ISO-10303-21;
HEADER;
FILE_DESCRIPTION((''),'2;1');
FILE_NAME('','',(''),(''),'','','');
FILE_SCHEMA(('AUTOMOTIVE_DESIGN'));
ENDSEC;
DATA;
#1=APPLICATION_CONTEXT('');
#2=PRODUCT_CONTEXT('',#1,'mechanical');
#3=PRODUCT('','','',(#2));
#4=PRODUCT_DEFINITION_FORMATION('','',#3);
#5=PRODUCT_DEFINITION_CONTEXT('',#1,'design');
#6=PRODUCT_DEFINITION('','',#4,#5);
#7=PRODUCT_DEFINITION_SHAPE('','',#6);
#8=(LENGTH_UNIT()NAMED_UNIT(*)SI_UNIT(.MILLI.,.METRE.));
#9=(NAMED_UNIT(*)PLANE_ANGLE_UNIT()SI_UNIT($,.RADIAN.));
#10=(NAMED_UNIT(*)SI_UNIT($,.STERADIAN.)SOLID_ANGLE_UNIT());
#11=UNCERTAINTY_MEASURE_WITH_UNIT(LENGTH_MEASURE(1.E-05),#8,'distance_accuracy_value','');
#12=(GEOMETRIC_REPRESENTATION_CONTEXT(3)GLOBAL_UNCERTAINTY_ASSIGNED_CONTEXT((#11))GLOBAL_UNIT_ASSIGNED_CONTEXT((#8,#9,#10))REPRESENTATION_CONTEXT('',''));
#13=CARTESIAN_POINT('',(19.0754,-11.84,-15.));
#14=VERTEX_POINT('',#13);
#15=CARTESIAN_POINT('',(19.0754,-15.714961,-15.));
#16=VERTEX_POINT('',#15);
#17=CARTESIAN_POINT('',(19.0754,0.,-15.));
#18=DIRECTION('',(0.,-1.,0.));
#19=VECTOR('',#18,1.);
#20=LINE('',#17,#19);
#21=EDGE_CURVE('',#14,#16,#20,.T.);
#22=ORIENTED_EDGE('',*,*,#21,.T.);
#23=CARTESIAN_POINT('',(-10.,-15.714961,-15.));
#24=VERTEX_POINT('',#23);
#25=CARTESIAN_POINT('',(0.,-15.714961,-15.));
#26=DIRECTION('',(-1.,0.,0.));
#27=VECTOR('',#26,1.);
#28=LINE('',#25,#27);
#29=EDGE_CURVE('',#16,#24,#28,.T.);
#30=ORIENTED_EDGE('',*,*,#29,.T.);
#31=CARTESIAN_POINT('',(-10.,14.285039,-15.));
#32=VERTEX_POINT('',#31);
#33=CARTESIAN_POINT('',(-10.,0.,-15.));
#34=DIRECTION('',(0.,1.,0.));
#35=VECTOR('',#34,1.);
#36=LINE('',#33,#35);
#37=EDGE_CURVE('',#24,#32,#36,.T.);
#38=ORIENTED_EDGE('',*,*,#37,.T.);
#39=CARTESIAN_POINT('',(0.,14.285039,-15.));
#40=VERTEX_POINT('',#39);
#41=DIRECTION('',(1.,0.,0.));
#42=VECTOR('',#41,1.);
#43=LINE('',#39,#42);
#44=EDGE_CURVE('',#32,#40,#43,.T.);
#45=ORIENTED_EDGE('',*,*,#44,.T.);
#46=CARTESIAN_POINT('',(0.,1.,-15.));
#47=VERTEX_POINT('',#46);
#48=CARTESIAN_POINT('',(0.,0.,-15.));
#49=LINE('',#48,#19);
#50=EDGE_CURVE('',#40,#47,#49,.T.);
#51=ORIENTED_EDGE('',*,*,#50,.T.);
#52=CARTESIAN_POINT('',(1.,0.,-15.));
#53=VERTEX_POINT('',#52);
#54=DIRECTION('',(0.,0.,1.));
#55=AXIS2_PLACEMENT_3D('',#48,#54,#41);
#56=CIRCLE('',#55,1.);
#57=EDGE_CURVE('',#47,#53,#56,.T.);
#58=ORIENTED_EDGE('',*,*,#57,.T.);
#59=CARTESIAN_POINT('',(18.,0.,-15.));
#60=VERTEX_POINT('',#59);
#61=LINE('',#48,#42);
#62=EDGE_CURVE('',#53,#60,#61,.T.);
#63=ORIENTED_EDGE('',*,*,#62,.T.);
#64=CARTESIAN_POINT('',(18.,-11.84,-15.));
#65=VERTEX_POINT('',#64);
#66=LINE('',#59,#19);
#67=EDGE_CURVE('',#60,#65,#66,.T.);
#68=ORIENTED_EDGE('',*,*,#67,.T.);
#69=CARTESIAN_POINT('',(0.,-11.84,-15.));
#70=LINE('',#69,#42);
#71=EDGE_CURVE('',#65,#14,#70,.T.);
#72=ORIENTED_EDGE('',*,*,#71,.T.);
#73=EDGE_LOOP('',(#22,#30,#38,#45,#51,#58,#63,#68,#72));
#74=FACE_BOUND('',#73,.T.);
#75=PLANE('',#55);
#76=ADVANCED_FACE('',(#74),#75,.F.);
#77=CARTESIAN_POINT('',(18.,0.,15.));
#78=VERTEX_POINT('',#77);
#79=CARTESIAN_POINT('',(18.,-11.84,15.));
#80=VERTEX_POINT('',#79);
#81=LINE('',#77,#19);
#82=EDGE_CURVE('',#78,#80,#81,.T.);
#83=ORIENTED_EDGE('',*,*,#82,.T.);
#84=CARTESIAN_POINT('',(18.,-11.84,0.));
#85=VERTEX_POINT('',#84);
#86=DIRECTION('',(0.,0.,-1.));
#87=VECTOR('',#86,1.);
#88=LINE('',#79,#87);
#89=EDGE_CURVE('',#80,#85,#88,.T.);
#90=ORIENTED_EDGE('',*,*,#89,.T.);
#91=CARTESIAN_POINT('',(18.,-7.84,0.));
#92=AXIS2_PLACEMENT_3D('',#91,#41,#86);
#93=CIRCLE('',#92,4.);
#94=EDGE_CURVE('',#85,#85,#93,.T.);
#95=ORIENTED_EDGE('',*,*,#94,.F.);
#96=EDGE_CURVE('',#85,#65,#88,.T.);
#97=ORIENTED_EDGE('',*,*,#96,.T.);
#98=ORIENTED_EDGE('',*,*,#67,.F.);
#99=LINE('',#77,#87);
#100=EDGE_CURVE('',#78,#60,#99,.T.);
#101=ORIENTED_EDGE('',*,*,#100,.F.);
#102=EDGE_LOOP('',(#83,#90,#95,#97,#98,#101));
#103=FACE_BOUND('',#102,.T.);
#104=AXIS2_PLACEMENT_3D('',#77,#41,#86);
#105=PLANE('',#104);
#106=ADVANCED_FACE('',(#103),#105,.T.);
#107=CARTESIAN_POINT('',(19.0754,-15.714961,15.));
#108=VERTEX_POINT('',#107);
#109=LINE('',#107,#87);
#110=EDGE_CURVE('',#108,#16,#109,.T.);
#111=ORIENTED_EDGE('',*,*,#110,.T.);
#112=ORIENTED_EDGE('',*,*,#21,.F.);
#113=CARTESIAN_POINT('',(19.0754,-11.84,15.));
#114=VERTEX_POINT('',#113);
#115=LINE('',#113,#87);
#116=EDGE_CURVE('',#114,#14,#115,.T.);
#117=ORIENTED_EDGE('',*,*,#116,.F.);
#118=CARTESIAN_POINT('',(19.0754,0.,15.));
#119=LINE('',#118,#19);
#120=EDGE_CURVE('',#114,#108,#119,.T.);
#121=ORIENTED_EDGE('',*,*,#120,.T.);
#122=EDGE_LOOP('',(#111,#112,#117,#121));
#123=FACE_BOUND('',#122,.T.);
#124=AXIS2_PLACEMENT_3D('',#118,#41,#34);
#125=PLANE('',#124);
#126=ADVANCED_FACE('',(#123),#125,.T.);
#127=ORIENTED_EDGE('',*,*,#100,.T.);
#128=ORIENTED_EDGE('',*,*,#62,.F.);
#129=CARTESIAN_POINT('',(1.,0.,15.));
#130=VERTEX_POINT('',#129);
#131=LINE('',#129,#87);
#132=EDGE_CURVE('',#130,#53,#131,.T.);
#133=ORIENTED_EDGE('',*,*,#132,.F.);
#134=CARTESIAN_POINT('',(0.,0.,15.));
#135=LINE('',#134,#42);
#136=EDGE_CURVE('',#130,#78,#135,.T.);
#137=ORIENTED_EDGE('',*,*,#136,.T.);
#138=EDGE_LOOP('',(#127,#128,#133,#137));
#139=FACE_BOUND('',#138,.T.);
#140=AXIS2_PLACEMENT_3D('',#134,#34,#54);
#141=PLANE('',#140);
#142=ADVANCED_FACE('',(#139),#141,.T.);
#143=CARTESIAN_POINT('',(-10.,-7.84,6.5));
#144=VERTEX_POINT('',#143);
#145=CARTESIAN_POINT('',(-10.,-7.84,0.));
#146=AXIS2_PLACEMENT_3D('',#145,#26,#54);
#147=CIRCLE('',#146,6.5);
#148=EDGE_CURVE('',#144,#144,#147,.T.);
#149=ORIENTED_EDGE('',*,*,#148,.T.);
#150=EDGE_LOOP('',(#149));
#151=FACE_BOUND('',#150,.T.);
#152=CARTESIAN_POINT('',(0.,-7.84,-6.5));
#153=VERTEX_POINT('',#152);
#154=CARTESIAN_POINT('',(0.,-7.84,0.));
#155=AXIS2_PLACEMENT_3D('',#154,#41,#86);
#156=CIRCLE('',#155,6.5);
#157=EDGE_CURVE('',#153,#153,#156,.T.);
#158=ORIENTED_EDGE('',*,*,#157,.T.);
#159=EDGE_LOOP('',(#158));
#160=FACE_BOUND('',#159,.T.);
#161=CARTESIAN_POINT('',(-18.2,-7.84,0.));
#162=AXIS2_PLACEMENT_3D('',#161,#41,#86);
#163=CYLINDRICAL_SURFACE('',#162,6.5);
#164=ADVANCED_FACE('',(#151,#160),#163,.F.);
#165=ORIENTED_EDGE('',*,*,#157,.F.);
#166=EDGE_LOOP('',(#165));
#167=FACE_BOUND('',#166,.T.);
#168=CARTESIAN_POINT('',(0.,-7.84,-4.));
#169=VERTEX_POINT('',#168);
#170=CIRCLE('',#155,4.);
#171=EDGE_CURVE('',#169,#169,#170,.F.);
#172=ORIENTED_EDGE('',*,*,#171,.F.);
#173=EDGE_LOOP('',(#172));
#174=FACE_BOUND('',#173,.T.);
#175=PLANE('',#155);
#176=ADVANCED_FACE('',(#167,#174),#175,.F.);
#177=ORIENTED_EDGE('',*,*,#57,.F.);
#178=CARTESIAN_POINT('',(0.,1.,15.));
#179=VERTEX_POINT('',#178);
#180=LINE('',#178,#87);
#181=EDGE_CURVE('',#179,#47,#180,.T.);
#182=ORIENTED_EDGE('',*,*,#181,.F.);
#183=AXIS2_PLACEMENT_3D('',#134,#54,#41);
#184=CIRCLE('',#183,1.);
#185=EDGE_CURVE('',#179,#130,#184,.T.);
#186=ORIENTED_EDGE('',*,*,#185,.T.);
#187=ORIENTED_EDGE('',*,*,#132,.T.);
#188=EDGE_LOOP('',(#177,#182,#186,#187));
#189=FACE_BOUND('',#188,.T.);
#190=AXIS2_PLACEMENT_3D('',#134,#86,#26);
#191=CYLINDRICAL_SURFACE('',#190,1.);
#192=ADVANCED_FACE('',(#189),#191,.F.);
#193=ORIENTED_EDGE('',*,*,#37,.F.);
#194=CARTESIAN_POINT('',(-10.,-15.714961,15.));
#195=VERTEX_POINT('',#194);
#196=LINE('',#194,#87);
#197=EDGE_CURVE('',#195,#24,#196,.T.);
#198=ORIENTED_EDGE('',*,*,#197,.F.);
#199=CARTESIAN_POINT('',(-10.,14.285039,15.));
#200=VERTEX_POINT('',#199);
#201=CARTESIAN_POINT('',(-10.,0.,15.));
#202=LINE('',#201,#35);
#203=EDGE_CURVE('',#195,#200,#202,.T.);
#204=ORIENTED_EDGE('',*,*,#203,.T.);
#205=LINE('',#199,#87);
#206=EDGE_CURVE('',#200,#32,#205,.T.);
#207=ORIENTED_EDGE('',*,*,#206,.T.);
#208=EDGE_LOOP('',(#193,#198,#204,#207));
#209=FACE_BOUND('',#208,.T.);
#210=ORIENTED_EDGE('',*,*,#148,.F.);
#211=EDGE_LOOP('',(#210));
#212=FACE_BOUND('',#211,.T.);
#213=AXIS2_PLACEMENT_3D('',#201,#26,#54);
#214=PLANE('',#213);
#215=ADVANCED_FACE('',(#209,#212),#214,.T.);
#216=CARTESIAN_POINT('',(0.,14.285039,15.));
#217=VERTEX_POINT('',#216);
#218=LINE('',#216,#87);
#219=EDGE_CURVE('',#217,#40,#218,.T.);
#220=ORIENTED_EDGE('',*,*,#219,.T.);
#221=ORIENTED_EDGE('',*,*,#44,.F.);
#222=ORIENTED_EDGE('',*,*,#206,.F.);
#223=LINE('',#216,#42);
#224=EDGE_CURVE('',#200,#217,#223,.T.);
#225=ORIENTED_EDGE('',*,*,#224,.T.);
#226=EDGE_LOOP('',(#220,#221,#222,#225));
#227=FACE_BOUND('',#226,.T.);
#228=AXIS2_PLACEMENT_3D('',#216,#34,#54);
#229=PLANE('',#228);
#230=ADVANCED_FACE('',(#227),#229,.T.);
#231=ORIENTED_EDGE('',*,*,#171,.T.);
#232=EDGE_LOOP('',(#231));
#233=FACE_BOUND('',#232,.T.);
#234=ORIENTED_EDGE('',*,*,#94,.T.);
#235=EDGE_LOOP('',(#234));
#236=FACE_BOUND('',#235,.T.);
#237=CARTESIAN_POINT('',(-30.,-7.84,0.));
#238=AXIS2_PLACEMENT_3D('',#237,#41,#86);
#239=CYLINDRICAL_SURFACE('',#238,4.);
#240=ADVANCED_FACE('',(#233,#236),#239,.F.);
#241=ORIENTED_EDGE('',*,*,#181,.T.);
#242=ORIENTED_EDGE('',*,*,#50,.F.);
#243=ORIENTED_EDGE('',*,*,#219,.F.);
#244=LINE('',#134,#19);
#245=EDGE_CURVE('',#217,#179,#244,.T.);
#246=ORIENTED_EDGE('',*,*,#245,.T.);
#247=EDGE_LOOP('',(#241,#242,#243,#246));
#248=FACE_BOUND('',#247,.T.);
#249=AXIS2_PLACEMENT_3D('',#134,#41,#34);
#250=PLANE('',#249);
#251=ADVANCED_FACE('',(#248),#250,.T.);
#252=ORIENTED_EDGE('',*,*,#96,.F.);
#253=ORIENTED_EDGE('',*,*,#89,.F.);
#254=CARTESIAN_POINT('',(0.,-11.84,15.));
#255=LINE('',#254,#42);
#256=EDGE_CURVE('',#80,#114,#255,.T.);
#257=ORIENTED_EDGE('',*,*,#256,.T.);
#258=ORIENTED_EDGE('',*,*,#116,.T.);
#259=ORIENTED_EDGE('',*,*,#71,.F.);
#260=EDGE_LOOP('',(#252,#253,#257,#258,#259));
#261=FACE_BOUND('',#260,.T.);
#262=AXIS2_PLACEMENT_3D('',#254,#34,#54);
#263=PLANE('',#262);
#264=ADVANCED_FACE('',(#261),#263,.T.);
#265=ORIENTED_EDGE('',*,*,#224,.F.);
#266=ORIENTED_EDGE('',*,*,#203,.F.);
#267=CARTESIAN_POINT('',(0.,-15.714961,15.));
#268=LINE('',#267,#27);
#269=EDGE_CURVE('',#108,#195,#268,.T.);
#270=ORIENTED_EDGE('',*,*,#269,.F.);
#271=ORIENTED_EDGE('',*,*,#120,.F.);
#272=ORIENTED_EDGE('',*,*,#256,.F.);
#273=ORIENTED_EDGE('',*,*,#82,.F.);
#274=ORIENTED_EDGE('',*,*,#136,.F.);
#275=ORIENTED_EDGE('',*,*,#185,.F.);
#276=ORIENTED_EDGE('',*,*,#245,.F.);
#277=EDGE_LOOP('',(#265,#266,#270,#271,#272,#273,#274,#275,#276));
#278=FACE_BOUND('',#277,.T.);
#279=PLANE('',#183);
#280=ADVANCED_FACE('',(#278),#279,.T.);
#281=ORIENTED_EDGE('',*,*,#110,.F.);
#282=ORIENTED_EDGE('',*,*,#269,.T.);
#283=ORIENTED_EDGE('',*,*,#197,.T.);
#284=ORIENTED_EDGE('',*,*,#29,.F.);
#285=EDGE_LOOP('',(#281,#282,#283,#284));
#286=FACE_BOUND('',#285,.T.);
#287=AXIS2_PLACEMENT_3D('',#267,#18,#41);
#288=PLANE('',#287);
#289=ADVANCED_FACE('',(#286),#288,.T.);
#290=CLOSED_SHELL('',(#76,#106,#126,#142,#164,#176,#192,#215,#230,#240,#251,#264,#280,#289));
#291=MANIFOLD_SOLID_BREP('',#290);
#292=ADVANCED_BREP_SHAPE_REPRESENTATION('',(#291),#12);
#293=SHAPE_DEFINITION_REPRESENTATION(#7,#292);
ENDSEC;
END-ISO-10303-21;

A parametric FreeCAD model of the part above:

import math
import FreeCAD as App
import Part
import Sketcher

V = App.Vector

doc = App.newDocument("Part")
body = doc.addObject("PartDesign::Body", "Body")

# Sketch on XY plane
sketch1 = body.newObject("Sketcher::SketchObject", "Sketch")
sketch1.AttachmentSupport = (doc.getObject("XY_Plane"), [""])
sketch1.MapMode = "FlatFace"
sketch1.addGeometry([
    Part.LineSegment(V(-10, 14.3, 0), V(-10, -15.7, 0)),  # 0
    Part.LineSegment(V(-10, -15.7, 0), V(19.1, -15.7, 0)),  # 1
    Part.LineSegment(V(19.1, -15.7, 0), V(19.1, -11.8, 0)),  # 2
    Part.LineSegment(V(19.1, -11.8, 0), V(18, -11.8, 0)),  # 3
    Part.LineSegment(V(18, -11.8, 0), V(18, 0, 0)),  # 4
    Part.LineSegment(V(18, 0, 0), V(1, 0, 0)),  # 5
    Part.ArcOfCircle(Part.Circle(V(0, 0, 0), V(0, 0, 1), 1), math.radians(90), math.radians(360)),  # 6
    Part.LineSegment(V(0, 1, 0), V(0, 14.3, 0)),  # 7
    Part.LineSegment(V(0, 14.3, 0), V(-10, 14.3, 0)),  # 8
], False)
sketch1.addConstraint([
    Sketcher.Constraint("Coincident", 0, 2, 1, 1),
    Sketcher.Constraint("Coincident", 1, 2, 2, 1),
    Sketcher.Constraint("Coincident", 2, 2, 3, 1),
    Sketcher.Constraint("Coincident", 3, 2, 4, 1),
    Sketcher.Constraint("Coincident", 4, 2, 5, 1),
    Sketcher.Constraint("Coincident", 5, 2, 6, 2),
    Sketcher.Constraint("Coincident", 6, 1, 7, 1),
    Sketcher.Constraint("Coincident", 7, 2, 8, 1),
    Sketcher.Constraint("Coincident", 8, 2, 0, 1),
    Sketcher.Constraint("Vertical", 0),
    Sketcher.Constraint("Horizontal", 1),
    Sketcher.Constraint("Vertical", 2),
    Sketcher.Constraint("Horizontal", 3),
    Sketcher.Constraint("Vertical", 4),
    Sketcher.Constraint("Horizontal", 5),
    Sketcher.Constraint("Vertical", 7),
    Sketcher.Constraint("Horizontal", 8),
    Sketcher.Constraint("Coincident", 6, 3, -1, 1),
    Sketcher.Constraint("PointOnObject", 4, 2, -1),
    Sketcher.Constraint("PointOnObject", 6, 1, -2),
    Sketcher.Constraint("Radius", 6, 1.0),
    Sketcher.Constraint("DistanceX", 5, 2, 5, 1, 17.0),
    Sketcher.Constraint("DistanceX", 8, 2, 8, 1, 10.0),
    Sketcher.Constraint("DistanceY", 0, 2, 0, 1, 30.0),
    Sketcher.Constraint("DistanceY", 4, 1, 4, 2, 11.84),
    Sketcher.Constraint("DistanceX", 1, 1, 1, 2, 29.0754),
    Sketcher.Constraint("DistanceY", 2, 1, 2, 2, 3.874961),
])
pad1 = body.newObject("PartDesign::Pad", "Pad")
pad1.Profile = sketch1
pad1.Type = "TwoLengths"
pad1.Length = 15
pad1.Length2 = 15

# Sketch on YZ plane
sketch2 = body.newObject("Sketcher::SketchObject", "Sketch001")
sketch2.AttachmentSupport = (doc.getObject("YZ_Plane"), [""])
sketch2.MapMode = "FlatFace"
sketch2.addGeometry(Part.Circle(V(-7.8, 0, 0), V(0, 0, 1), 4), False)
sketch2.addConstraint([
    Sketcher.Constraint("PointOnObject", 0, 3, -1),
    Sketcher.Constraint("Diameter", 0, 8.0),
    Sketcher.Constraint("DistanceX", 0, 3, -1, 1, 7.84),
])
pocket1 = body.newObject("PartDesign::Pocket", "Pocket")
pocket1.Profile = sketch2
pocket1.Type = "ThroughAll"
pocket1.Midplane = True

# Sketch on YZ plane
sketch3 = body.newObject("Sketcher::SketchObject", "Sketch002")
sketch3.AttachmentSupport = (doc.getObject("YZ_Plane"), [""])
sketch3.MapMode = "FlatFace"
sketch3.addGeometry(Part.Circle(V(-8, 0, 0), V(0, 0, 1), 6), False)
sketch3.addConstraint([
    Sketcher.Constraint("PointOnObject", 0, 3, -1),
    Sketcher.Constraint("Diameter", 0, 13.0),
    Sketcher.Constraint("DistanceX", 0, 3, -1, 1, 7.84),
])
pocket2 = body.newObject("PartDesign::Pocket", "Pocket001")
pocket2.Profile = sketch3
pocket2.Length = 18.2

doc.recompute()
